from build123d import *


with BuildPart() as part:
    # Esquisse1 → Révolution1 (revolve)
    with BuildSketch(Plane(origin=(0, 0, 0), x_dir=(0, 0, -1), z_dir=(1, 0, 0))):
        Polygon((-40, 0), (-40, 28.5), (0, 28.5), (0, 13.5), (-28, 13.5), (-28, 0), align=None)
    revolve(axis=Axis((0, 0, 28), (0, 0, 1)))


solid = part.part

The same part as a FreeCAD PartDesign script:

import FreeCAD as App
import Part
import Sketcher

V = App.Vector


def add_polygon(sketch, points):
    """Adds a closed chain of lines whose ends are joined by coincident constraints."""
    first, n = sketch.GeometryCount, len(points)
    for a, b in zip(points, points[1:] + points[:1]):
        sketch.addGeometry(Part.LineSegment(App.Vector(*a, 0), App.Vector(*b, 0)), False)
    for i in range(n):
        sketch.addConstraint(Sketcher.Constraint("Coincident", first + i, 2, first + (i + 1) % n, 1))

doc = App.newDocument("Part")
body = doc.addObject("PartDesign::Body", "Body")

# Sketch on YZ plane
sketch1 = body.newObject("Sketcher::SketchObject", "Sketch")
sketch1.AttachmentSupport = (doc.getObject("YZ_Plane"), [""])
sketch1.MapMode = "FlatFace"
add_polygon(sketch1, [(28.5, 40), (0, 40), (0, 28), (13.5, 28), (13.5, 0), (28.5, 0)])  # lines 0-5
sketch1.addConstraint(Sketcher.Constraint("Horizontal", 0))
sketch1.addConstraint(Sketcher.Constraint("Vertical", 1))
sketch1.addConstraint(Sketcher.Constraint("Horizontal", 2))
sketch1.addConstraint(Sketcher.Constraint("Vertical", 3))
sketch1.addConstraint(Sketcher.Constraint("Horizontal", 4))
sketch1.addConstraint(Sketcher.Constraint("Vertical", 5))
sketch1.addConstraint(Sketcher.Constraint("PointOnObject", 0, 2, -2))
sketch1.addConstraint(Sketcher.Constraint("PointOnObject", 3, 2, -1))
sketch1.addConstraint(Sketcher.Constraint("DistanceX", 4, 1, 4, 2, 15.0))
sketch1.addConstraint(Sketcher.Constraint("DistanceY", 1, 2, 1, 1, 12.0))
sketch1.addConstraint(Sketcher.Constraint("DistanceY", 3, 2, 3, 1, 28.0))
sketch1.addConstraint(Sketcher.Constraint("DistanceX", 0, 2, 0, 1, 28.5))
revolution = body.newObject("PartDesign::Revolution", "Revolution")
revolution.Profile = sketch1
revolution.ReferenceAxis = (sketch1, ["V_Axis"])
revolution.Angle = 360

doc.recompute()
